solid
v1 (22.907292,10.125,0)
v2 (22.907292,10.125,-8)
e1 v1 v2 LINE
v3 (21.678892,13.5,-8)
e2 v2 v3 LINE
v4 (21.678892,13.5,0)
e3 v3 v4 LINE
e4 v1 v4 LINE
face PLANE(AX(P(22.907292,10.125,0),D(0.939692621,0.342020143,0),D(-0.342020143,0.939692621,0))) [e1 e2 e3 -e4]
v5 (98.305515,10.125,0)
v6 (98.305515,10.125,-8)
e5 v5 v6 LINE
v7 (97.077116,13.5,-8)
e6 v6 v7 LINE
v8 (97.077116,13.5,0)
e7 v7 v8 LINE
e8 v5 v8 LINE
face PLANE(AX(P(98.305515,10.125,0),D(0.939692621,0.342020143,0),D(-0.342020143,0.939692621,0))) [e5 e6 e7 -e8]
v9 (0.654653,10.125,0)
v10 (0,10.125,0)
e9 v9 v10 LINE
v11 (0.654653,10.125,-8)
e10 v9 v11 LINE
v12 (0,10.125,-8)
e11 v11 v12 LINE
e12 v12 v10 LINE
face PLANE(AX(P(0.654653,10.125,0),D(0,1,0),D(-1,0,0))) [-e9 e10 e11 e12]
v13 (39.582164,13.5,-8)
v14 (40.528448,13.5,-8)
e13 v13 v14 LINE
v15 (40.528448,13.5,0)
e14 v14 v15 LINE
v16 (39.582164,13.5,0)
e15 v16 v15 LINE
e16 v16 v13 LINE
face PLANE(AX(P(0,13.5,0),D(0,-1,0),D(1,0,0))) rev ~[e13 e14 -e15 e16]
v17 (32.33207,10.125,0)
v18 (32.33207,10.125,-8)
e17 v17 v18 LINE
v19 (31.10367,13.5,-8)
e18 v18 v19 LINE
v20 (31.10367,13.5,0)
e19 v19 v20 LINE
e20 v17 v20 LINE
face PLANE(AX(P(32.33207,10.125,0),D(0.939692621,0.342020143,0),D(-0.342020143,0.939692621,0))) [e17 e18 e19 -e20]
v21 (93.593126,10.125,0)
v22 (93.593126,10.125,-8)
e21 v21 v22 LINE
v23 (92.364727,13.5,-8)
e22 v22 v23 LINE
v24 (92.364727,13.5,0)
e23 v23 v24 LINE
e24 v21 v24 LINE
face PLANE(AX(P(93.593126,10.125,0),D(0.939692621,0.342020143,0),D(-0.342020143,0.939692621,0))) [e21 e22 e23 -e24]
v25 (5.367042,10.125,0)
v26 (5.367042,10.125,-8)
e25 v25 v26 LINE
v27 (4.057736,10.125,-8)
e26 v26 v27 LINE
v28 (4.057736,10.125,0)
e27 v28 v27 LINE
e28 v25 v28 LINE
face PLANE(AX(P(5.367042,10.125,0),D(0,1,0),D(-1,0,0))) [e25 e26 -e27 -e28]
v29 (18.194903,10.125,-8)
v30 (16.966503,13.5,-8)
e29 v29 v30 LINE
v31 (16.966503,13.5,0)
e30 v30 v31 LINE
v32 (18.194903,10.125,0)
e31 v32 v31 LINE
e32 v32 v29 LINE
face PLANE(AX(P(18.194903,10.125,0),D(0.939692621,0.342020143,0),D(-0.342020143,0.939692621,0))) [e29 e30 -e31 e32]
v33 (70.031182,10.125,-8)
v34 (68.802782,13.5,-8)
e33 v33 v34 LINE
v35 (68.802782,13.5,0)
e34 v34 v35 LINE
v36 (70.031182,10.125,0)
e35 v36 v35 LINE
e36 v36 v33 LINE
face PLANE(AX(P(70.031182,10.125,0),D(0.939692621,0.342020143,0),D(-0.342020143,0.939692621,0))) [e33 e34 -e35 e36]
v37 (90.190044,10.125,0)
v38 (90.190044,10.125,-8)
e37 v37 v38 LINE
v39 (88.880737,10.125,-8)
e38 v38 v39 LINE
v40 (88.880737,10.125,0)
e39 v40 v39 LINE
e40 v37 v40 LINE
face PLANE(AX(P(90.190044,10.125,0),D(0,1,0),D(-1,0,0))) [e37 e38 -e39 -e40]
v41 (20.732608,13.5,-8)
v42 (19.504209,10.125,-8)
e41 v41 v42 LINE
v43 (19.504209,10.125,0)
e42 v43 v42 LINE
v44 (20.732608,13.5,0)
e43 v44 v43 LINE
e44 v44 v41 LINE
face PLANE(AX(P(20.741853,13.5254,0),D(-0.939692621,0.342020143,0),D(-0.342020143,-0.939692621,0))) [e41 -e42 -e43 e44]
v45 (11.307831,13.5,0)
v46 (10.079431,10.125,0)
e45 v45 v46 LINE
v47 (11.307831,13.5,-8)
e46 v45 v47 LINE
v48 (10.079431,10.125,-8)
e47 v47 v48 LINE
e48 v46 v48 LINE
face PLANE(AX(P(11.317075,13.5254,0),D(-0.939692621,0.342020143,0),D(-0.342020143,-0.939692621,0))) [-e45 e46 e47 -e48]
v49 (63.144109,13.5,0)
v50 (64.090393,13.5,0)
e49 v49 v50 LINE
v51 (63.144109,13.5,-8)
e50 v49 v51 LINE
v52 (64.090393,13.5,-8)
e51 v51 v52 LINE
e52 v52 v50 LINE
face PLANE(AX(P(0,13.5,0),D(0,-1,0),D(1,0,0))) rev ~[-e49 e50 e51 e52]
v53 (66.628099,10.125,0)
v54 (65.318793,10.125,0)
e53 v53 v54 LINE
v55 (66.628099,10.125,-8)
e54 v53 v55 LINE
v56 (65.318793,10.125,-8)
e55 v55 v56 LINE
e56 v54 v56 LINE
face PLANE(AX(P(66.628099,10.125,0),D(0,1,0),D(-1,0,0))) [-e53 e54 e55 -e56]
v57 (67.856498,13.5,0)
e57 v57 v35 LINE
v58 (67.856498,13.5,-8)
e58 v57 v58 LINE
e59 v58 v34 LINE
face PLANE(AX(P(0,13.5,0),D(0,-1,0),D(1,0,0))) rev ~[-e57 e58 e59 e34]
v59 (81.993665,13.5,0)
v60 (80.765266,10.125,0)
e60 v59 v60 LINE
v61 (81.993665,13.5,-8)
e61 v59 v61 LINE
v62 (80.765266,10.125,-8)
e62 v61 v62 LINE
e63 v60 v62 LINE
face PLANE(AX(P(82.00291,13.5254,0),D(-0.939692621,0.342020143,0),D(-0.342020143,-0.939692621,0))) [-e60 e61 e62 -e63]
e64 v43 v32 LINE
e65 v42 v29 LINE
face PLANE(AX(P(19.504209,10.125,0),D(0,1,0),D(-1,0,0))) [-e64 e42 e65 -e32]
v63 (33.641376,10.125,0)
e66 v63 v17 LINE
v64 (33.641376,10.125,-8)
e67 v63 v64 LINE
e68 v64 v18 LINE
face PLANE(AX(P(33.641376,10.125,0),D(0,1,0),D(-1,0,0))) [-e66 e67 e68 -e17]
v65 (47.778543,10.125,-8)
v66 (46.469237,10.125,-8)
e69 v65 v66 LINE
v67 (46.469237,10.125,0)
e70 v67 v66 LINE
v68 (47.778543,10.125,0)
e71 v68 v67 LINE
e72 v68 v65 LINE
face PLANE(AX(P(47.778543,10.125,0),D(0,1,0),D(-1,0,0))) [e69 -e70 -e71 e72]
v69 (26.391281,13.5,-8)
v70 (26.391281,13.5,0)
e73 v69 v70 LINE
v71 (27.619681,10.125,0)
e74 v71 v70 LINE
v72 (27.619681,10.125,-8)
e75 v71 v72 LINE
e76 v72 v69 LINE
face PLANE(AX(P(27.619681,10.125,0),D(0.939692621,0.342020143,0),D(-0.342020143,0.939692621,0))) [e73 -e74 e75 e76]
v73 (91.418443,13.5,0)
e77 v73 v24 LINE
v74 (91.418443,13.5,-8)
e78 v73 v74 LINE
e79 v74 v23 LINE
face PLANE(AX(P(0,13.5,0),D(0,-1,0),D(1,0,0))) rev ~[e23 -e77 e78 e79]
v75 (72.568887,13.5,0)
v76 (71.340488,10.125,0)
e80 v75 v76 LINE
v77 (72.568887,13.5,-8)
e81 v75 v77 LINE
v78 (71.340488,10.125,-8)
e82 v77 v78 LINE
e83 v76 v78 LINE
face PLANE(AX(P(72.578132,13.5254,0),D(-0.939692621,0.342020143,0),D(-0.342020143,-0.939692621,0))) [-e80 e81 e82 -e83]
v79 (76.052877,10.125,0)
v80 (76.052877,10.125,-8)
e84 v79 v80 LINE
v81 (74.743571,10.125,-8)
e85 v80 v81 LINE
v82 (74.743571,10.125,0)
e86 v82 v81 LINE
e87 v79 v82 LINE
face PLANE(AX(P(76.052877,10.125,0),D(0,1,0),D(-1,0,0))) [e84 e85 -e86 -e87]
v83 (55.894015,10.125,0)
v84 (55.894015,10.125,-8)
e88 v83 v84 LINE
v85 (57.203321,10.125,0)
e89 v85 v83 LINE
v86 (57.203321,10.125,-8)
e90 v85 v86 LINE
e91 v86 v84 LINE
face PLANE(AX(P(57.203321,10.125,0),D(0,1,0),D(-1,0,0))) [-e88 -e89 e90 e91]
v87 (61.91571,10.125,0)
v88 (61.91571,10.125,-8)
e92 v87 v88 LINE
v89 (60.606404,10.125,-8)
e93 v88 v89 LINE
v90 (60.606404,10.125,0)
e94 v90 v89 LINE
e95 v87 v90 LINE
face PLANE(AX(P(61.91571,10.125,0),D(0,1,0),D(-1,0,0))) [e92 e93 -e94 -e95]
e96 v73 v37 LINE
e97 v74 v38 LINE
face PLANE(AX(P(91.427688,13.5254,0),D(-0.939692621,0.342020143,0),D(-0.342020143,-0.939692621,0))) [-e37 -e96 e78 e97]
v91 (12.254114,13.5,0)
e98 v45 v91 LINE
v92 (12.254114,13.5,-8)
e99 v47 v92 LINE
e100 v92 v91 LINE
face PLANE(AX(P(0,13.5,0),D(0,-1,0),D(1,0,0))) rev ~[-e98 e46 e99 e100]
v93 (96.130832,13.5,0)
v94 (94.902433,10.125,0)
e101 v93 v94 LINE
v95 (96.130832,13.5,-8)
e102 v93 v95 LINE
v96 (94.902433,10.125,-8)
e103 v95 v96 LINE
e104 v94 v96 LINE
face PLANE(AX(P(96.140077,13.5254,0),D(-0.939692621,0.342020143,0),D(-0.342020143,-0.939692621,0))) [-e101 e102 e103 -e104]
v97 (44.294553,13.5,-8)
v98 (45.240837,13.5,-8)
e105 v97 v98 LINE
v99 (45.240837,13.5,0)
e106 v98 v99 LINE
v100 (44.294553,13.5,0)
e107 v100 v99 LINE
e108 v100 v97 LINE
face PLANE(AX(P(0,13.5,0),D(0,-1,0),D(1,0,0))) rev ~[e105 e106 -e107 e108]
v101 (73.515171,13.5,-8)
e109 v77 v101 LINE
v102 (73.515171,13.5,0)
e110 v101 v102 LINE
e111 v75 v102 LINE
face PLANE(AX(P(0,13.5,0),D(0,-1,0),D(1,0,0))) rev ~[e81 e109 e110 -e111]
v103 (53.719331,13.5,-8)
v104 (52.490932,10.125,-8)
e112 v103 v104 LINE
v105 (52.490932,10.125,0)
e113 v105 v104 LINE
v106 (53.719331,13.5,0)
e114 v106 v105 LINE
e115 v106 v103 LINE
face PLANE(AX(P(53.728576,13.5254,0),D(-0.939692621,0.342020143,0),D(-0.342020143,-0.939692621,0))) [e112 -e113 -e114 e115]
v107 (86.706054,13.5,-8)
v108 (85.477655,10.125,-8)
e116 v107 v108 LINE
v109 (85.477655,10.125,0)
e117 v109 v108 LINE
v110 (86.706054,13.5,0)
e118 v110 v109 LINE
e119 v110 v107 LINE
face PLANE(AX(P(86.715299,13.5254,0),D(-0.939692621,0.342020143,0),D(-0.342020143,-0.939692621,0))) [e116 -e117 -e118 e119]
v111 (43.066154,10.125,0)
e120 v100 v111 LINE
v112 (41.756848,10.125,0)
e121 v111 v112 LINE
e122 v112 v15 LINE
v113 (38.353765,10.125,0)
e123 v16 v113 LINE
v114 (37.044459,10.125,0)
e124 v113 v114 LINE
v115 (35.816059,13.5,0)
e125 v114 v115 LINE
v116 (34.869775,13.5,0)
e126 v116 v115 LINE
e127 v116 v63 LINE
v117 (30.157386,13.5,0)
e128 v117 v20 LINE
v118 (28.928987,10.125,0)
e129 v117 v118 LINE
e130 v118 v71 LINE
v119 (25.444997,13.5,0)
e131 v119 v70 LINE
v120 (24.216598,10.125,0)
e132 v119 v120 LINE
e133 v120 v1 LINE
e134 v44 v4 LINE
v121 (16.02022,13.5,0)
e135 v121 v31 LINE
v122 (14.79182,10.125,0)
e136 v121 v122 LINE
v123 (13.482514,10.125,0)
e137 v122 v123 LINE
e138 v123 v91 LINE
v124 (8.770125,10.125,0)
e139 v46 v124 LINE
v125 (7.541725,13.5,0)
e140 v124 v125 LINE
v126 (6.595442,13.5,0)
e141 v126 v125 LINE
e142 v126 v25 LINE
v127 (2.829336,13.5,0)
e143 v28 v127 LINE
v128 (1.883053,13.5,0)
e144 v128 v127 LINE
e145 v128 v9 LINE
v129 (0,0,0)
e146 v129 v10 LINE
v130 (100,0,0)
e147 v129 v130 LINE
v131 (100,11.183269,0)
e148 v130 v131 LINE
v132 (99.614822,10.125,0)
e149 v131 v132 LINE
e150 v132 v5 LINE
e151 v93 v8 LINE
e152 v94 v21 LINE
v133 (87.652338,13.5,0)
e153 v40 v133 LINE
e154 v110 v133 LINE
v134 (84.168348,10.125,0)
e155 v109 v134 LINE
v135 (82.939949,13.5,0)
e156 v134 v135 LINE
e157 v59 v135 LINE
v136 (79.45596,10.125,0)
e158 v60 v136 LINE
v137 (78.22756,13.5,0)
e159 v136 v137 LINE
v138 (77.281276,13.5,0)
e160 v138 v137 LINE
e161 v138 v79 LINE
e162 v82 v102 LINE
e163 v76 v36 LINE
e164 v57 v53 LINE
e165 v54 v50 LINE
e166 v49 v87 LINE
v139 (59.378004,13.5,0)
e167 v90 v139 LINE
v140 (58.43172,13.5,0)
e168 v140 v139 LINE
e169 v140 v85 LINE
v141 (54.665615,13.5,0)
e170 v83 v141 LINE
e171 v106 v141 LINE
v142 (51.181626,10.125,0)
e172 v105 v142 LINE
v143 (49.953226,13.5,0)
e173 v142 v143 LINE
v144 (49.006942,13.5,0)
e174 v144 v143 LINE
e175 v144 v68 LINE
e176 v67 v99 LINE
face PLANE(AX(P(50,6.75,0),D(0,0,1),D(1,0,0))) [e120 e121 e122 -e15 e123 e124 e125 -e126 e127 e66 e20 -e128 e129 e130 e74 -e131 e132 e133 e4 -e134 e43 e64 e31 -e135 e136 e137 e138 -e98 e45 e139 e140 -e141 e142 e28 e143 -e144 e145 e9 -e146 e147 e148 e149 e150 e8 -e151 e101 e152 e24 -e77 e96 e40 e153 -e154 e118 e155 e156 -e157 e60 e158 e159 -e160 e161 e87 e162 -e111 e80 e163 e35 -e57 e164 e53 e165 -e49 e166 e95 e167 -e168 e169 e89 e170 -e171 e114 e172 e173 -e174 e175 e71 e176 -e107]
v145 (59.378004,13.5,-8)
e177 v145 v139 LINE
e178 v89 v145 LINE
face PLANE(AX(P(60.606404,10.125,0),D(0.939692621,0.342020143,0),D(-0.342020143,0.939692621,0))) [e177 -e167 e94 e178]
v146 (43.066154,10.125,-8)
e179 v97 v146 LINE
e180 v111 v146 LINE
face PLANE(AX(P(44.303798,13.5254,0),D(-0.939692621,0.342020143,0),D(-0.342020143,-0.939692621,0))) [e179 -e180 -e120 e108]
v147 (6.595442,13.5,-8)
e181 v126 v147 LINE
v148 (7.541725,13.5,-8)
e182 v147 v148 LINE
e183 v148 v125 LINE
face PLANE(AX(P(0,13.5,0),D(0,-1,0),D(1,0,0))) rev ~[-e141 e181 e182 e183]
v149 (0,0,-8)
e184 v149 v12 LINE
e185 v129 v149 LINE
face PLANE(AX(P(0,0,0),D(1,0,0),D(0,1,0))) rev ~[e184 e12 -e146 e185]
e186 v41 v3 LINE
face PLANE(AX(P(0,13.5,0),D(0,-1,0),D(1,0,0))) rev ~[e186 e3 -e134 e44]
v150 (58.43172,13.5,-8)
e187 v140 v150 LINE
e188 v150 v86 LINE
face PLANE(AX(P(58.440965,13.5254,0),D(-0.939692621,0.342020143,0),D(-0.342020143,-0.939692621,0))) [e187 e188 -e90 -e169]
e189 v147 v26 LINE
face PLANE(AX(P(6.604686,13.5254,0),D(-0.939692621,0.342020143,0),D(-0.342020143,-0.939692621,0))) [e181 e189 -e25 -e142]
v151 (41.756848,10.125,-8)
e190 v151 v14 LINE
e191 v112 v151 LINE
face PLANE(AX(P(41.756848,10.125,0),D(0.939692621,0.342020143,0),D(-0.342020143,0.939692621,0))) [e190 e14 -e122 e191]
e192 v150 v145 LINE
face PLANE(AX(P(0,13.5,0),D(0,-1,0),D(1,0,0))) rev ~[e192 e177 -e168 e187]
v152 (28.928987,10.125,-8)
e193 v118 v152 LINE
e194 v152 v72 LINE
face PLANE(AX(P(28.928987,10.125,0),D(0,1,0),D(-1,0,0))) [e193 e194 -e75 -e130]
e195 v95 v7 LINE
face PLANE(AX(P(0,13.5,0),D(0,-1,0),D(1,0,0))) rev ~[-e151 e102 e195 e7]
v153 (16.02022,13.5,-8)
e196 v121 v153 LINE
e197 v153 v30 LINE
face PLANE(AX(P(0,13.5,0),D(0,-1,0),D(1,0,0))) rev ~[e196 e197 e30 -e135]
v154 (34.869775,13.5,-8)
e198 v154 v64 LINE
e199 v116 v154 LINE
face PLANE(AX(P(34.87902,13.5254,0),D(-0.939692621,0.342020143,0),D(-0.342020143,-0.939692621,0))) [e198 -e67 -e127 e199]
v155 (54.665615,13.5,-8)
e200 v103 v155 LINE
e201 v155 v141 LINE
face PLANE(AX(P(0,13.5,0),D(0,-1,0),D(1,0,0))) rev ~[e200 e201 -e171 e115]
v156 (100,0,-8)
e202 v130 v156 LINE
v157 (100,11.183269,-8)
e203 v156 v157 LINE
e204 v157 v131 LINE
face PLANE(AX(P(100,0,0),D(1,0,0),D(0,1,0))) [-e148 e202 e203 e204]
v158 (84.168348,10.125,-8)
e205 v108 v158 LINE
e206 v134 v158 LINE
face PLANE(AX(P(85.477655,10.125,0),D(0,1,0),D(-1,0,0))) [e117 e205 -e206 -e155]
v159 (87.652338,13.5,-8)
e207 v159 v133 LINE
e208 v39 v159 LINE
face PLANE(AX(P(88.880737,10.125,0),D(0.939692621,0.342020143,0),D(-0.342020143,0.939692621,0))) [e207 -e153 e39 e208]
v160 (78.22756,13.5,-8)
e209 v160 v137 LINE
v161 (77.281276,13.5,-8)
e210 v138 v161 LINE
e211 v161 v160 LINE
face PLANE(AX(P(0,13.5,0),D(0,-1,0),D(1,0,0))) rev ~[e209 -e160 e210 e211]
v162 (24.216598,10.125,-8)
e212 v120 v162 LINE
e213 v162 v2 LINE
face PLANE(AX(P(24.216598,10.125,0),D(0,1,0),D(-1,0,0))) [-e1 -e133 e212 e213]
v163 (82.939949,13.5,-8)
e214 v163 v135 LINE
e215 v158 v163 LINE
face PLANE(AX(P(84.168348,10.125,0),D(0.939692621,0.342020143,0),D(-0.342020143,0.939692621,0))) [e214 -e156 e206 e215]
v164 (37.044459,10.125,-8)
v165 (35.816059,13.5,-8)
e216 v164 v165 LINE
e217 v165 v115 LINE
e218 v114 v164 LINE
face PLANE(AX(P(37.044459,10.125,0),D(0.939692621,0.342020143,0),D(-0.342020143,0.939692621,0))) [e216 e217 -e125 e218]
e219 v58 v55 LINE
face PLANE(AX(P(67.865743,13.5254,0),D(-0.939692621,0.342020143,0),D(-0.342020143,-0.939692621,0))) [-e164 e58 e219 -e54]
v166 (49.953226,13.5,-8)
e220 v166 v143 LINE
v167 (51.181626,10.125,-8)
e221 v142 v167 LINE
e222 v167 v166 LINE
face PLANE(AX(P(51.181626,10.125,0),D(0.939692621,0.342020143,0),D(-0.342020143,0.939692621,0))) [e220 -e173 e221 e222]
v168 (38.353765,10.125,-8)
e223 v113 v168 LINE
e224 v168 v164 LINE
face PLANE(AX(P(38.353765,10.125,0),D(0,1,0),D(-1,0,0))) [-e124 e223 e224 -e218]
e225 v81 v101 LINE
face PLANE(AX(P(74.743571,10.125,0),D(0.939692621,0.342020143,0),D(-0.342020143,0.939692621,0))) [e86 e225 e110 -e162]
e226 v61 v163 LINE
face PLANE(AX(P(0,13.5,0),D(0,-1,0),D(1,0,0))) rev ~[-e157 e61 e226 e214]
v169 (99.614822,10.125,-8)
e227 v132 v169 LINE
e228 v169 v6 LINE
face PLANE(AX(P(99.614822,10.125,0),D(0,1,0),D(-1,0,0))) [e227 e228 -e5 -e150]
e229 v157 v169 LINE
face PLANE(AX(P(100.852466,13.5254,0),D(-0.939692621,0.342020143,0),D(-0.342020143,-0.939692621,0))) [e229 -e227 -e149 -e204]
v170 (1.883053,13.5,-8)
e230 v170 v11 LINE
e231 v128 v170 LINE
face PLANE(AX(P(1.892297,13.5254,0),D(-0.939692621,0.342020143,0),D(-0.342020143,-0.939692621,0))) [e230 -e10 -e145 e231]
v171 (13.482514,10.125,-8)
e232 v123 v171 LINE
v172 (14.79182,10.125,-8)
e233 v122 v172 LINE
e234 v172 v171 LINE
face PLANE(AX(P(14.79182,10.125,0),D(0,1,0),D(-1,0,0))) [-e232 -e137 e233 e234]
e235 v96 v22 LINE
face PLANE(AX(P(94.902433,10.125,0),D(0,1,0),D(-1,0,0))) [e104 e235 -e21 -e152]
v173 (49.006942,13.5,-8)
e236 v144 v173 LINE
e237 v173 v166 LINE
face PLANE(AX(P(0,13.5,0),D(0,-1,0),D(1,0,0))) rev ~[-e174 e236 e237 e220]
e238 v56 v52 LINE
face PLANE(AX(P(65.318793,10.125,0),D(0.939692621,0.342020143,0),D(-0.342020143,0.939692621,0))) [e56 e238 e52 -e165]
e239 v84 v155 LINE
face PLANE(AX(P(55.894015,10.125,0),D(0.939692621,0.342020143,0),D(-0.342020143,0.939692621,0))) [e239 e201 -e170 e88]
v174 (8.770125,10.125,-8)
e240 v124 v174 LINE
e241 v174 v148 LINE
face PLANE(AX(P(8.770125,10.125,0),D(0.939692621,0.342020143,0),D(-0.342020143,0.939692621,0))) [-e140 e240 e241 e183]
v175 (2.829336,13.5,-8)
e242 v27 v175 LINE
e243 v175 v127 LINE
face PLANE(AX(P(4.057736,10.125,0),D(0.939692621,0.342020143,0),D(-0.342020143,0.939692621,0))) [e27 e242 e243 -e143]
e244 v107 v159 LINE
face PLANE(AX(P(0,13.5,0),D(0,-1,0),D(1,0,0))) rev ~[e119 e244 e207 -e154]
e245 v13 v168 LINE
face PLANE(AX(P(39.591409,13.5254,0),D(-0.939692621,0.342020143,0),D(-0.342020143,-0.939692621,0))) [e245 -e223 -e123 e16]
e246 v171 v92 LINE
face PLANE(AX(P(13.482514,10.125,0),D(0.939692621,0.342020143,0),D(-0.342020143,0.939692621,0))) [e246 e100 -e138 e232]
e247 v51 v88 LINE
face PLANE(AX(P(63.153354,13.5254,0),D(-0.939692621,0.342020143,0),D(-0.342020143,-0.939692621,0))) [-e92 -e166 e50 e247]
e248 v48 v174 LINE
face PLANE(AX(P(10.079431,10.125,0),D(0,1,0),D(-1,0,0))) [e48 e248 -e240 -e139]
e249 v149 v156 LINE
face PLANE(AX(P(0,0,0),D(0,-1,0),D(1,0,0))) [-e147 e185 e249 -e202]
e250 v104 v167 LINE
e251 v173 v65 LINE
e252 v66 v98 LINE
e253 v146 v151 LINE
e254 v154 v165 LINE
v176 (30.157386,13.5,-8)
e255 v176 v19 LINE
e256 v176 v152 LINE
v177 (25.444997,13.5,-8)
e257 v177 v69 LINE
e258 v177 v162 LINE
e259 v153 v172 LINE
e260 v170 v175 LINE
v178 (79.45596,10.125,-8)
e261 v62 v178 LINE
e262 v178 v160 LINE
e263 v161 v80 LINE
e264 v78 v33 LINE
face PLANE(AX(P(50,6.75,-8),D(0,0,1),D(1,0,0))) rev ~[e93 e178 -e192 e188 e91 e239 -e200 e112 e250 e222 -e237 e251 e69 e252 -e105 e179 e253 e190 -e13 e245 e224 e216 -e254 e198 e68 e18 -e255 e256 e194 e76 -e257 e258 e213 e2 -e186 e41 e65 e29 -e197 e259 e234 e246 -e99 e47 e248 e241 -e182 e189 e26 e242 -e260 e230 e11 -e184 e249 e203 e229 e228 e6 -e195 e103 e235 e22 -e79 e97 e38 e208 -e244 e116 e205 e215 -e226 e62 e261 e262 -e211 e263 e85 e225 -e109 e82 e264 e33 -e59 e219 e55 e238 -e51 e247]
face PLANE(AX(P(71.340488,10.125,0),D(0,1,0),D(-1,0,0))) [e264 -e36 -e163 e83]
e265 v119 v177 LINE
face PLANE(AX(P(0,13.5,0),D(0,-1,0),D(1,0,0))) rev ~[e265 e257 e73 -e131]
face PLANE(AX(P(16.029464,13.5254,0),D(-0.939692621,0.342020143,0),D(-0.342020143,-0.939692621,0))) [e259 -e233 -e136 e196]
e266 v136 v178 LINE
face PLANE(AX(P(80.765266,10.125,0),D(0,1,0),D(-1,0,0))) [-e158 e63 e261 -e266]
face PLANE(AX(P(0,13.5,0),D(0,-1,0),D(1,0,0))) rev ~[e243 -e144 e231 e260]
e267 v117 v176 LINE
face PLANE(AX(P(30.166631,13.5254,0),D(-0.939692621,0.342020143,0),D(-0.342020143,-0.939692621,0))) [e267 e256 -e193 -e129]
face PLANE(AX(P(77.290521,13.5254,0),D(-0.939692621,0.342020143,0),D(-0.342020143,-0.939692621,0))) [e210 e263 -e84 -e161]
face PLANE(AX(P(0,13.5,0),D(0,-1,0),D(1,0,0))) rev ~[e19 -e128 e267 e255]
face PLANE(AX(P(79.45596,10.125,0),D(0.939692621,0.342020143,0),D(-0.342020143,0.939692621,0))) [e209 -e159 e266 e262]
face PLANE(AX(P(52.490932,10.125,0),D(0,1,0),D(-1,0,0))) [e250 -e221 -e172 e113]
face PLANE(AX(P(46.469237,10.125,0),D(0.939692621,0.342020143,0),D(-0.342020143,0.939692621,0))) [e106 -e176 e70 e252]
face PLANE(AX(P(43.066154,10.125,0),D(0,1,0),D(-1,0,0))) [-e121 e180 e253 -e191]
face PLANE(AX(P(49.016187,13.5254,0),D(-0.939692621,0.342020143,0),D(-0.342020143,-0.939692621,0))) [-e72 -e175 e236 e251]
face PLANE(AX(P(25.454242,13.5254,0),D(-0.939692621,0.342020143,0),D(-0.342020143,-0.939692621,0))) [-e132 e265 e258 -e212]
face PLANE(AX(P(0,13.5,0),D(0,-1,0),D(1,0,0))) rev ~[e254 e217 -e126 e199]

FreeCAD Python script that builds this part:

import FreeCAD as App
import Part
import Sketcher

V = App.Vector
Q = App.Units.Quantity

doc = App.newDocument("Part")
body = doc.addObject("PartDesign::Body", "Body")

# Sketch on XY plane
sketch1 = body.newObject("Sketcher::SketchObject", "Sketch")
sketch1.AttachmentSupport = (doc.getObject("XY_Plane"), [""])
sketch1.MapMode = "FlatFace"
sketch1.addGeometry([
    Part.LineSegment(V(0, 13.5, 0), V(0, 0, 0)),
    Part.LineSegment(V(0, 0, 0), V(100, 0, 0)),
    Part.LineSegment(V(100, 0, 0), V(100, 13.5, 0)),
    Part.LineSegment(V(100, 13.5, 0), V(0, 13.5, 0)),
], False)
sketch1.addConstraint([
    Sketcher.Constraint("Coincident", 0, 2, 1, 1),
    Sketcher.Constraint("Coincident", 1, 2, 2, 1),
    Sketcher.Constraint("Coincident", 2, 2, 3, 1),
    Sketcher.Constraint("Coincident", 3, 2, 0, 1),
    Sketcher.Constraint("Vertical", 0),
    Sketcher.Constraint("Horizontal", 1),
    Sketcher.Constraint("Vertical", 2),
    Sketcher.Constraint("Horizontal", 3),
    Sketcher.Constraint("Coincident", 0, 2, -1, 1),
    Sketcher.Constraint("DistanceX", 1, 1, 1, 2, 100.0),
    Sketcher.Constraint("DistanceY", 0, 2, 0, 1, 13.5),
])
pad1 = body.newObject("PartDesign::Pad", "Pad")
pad1.Profile = sketch1
pad1.Length = 8
pad1.Reversed = True

# Sketch on XY plane
sketch2 = body.newObject("Sketcher::SketchObject", "Sketch001")
sketch2.AttachmentSupport = (doc.getObject("XY_Plane"), [""])
sketch2.MapMode = "FlatFace"
sketch2.addGeometry([
    Part.LineSegment(V(-0.654653, 10.125, 0), V(0.654653, 10.125, 0)),
    Part.LineSegment(V(0.654653, 10.125, 0), V(1.892297, 13.5254, 0)),
    Part.LineSegment(V(1.892297, 13.5254, 0), V(-1.892297, 13.5254, 0)),
    Part.LineSegment(V(-1.892297, 13.5254, 0), V(-0.654653, 10.125, 0)),
], False)
sketch2.addConstraint([
    Sketcher.Constraint("Coincident", 0, 2, 1, 1),
    Sketcher.Constraint("Coincident", 1, 2, 2, 1),
    Sketcher.Constraint("Coincident", 2, 2, 3, 1),
    Sketcher.Constraint("Coincident", 3, 2, 0, 1),
    Sketcher.Constraint("Horizontal", 0),
    Sketcher.Constraint("Horizontal", 2),
    Sketcher.Constraint("Equal", 1, 3),
    Sketcher.Constraint("Angle", 1, Q("70 deg")),
    Sketcher.Constraint("DistanceY", -1, 1, 0, 2, 10.125),
    Sketcher.Constraint("DistanceY", -1, 1, 1, 2, 13.5254),
    Sketcher.Constraint("DistanceX", 0, 1, 0, 2, 1.309306),
    Sketcher.Constraint("DistanceX", -1, 1, 0, 2, 0.654653),
])
pocket1 = body.newObject("PartDesign::Pocket", "Pocket")
pocket1.Profile = sketch2
pocket1.Type = "ThroughAll"
doc.recompute()

linearpattern = body.newObject("PartDesign::LinearPattern", "LinearPattern")
linearpattern.Originals = [pocket1]
linearpattern.Direction = (doc.getObject("X_Axis"), [""])
linearpattern.Mode = "offset"
linearpattern.Offset = 4.712389
linearpattern.Occurrences = 22
body.Tip = linearpattern

doc.recompute()
